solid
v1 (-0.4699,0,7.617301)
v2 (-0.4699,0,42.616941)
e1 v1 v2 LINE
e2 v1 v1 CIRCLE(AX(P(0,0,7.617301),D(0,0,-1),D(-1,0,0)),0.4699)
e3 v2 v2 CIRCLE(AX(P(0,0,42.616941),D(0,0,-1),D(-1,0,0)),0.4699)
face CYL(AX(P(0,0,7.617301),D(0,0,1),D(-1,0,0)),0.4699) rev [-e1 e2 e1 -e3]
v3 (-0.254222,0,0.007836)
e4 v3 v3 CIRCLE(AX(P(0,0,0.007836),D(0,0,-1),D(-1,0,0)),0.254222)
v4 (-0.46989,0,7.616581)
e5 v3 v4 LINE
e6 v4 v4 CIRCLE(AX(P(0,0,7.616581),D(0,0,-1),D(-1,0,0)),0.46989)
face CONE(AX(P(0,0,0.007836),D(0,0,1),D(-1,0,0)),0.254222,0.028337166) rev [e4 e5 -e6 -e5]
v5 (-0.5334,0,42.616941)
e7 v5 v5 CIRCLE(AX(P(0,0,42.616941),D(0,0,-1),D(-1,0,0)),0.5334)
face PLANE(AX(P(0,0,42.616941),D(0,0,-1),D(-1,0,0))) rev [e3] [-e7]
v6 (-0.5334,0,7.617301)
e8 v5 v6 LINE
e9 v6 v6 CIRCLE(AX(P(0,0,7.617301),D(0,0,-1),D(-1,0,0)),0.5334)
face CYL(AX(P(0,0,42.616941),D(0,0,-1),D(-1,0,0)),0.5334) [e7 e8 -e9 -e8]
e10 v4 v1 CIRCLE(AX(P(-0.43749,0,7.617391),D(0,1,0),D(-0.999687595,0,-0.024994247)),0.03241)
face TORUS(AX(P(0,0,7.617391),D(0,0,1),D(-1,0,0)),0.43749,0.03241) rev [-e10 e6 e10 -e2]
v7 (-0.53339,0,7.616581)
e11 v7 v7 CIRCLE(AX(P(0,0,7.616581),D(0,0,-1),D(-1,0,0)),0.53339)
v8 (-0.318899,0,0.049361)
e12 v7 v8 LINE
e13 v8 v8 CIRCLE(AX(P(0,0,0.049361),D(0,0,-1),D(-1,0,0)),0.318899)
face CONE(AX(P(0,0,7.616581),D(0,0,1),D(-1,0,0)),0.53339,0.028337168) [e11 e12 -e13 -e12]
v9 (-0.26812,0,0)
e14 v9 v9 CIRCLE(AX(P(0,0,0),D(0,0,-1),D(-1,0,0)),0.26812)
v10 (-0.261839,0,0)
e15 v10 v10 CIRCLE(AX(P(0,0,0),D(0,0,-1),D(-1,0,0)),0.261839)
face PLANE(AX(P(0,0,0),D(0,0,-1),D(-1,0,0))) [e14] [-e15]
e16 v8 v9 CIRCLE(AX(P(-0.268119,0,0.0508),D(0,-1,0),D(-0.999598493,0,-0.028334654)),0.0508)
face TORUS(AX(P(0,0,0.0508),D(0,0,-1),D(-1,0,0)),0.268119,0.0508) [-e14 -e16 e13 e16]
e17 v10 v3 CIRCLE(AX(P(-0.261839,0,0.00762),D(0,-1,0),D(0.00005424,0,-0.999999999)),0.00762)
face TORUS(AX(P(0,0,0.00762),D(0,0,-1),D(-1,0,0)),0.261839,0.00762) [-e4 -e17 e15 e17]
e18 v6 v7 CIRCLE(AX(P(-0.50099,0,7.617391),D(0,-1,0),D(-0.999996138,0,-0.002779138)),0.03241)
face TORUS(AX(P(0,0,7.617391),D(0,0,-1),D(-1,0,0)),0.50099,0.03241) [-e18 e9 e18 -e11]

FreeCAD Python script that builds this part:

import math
import FreeCAD as App
import Part
import Sketcher

V = App.Vector
Q = App.Units.Quantity

doc = App.newDocument("Part")
body = doc.addObject("PartDesign::Body", "Body")

sketch1 = doc.addObject("Sketcher::SketchObject", "Sketch")
body.addObject(sketch1)
sketch1.AttachmentSupport = (doc.XZ_Plane, [""])
sketch1.MapMode = "FlatFace"
sketch1.addGeometry([
    Part.ArcOfCircle(Part.Circle(V(-0.2618, 0.0076, 0), V(0, 0, 1), 0.0076), math.radians(-90), math.radians(2)),
    Part.LineSegment(V(-0.2542, 0.0078, 0), V(-0.4699, 7.6166, 0)),
    Part.ArcOfCircle(Part.Circle(V(-0.4375, 7.6174, 0), V(0, 0, 1), 0.0324), math.radians(-179.84), math.radians(-178.57)),
    Part.LineSegment(V(-0.4699, 7.6173, 0), V(-0.4699, 42.6169, 0)),
    Part.LineSegment(V(-0.4699, 42.6169, 0), V(-0.5334, 42.6169, 0)),
    Part.LineSegment(V(-0.5334, 42.6169, 0), V(-0.5334, 7.6173, 0)),
    Part.ArcOfCircle(Part.Circle(V(-0.501, 7.6174, 0), V(0, 0, 1), 0.0324), math.radians(-179.84), math.radians(-178.57)),
    Part.LineSegment(V(-0.5334, 7.6166, 0), V(-0.3189, 0.0494, 0)),
    Part.ArcOfCircle(Part.Circle(V(-0.2681, 0.0508, 0), V(0, 0, 1), 0.0508), math.radians(-178), math.radians(-90)),
    Part.LineSegment(V(-0.2681, 0, 0), V(-0.2618, 0, 0)),
], False)
sketch1.addConstraint([
    Sketcher.Constraint("Coincident", 0, 2, 1, 1),
    Sketcher.Constraint("Coincident", 1, 2, 2, 2),
    Sketcher.Constraint("Coincident", 2, 1, 3, 1),
    Sketcher.Constraint("Coincident", 3, 2, 4, 1),
    Sketcher.Constraint("Coincident", 4, 2, 5, 1),
    Sketcher.Constraint("Coincident", 5, 2, 6, 1),
    Sketcher.Constraint("Coincident", 6, 2, 7, 1),
    Sketcher.Constraint("Tangent", 7, 2, 8, 1),
    Sketcher.Constraint("Coincident", 8, 2, 9, 1),
    Sketcher.Constraint("Coincident", 9, 2, 0, 1),
    Sketcher.Constraint("Vertical", 3),
    Sketcher.Constraint("Horizontal", 4),
    Sketcher.Constraint("Vertical", 5),
    Sketcher.Constraint("Horizontal", 9),
    Sketcher.Constraint("Equal", 2, 6),
    Sketcher.Constraint("PointOnObject", 8, 2, -1),
    Sketcher.Constraint("Parallel", 1, 7),
    Sketcher.Constraint("Horizontal", 2, 3, 6, 3),
    Sketcher.Constraint("Horizontal", 2, 1, 5, 2),
    Sketcher.Constraint("Horizontal", 1, 2, 6, 2),
    Sketcher.Constraint("Vertical", 0, 3, 9, 2),
    Sketcher.Constraint("Radius", 8, Q("0.002 in")),
    Sketcher.Constraint("Radius", 0, Q("0.0003 in")),
    Sketcher.Constraint("DistanceX", 4, 2, 4, 1, Q("0.0025 in")),
    Sketcher.Constraint("DistanceX", 4, 2, -1, 1, Q("0.021 in")),
    Sketcher.Constraint("Radius", 2, Q("0.03241 mm")),
    Sketcher.Constraint("Distance", 1, Q("7.611801 mm")),
    Sketcher.Constraint("DistanceX", 9, 1, 9, 2, Q("0.006281 mm")),
    Sketcher.Constraint("DistanceY", 3, 1, 3, 2, Q("34.99964 mm")),
    Sketcher.Constraint("DistanceY", -1, 1, 2, 1, Q("7.617301 mm")),
    Sketcher.Constraint("DistanceX", 7, 2, -1, 1, Q("0.318899 mm")),
    Sketcher.Constraint("Distance", 7, Q("7.570259 mm")),
    Sketcher.Constraint("DistanceY", -1, 1, 2, 3, Q("7.617391 mm")),
])
revolution = doc.addObject("PartDesign::Revolution", "Revolution")
body.addObject(revolution)
revolution.Profile = sketch1
revolution.ReferenceAxis = (sketch1, ["V_Axis"])
revolution.Angle = 360

doc.recompute()
